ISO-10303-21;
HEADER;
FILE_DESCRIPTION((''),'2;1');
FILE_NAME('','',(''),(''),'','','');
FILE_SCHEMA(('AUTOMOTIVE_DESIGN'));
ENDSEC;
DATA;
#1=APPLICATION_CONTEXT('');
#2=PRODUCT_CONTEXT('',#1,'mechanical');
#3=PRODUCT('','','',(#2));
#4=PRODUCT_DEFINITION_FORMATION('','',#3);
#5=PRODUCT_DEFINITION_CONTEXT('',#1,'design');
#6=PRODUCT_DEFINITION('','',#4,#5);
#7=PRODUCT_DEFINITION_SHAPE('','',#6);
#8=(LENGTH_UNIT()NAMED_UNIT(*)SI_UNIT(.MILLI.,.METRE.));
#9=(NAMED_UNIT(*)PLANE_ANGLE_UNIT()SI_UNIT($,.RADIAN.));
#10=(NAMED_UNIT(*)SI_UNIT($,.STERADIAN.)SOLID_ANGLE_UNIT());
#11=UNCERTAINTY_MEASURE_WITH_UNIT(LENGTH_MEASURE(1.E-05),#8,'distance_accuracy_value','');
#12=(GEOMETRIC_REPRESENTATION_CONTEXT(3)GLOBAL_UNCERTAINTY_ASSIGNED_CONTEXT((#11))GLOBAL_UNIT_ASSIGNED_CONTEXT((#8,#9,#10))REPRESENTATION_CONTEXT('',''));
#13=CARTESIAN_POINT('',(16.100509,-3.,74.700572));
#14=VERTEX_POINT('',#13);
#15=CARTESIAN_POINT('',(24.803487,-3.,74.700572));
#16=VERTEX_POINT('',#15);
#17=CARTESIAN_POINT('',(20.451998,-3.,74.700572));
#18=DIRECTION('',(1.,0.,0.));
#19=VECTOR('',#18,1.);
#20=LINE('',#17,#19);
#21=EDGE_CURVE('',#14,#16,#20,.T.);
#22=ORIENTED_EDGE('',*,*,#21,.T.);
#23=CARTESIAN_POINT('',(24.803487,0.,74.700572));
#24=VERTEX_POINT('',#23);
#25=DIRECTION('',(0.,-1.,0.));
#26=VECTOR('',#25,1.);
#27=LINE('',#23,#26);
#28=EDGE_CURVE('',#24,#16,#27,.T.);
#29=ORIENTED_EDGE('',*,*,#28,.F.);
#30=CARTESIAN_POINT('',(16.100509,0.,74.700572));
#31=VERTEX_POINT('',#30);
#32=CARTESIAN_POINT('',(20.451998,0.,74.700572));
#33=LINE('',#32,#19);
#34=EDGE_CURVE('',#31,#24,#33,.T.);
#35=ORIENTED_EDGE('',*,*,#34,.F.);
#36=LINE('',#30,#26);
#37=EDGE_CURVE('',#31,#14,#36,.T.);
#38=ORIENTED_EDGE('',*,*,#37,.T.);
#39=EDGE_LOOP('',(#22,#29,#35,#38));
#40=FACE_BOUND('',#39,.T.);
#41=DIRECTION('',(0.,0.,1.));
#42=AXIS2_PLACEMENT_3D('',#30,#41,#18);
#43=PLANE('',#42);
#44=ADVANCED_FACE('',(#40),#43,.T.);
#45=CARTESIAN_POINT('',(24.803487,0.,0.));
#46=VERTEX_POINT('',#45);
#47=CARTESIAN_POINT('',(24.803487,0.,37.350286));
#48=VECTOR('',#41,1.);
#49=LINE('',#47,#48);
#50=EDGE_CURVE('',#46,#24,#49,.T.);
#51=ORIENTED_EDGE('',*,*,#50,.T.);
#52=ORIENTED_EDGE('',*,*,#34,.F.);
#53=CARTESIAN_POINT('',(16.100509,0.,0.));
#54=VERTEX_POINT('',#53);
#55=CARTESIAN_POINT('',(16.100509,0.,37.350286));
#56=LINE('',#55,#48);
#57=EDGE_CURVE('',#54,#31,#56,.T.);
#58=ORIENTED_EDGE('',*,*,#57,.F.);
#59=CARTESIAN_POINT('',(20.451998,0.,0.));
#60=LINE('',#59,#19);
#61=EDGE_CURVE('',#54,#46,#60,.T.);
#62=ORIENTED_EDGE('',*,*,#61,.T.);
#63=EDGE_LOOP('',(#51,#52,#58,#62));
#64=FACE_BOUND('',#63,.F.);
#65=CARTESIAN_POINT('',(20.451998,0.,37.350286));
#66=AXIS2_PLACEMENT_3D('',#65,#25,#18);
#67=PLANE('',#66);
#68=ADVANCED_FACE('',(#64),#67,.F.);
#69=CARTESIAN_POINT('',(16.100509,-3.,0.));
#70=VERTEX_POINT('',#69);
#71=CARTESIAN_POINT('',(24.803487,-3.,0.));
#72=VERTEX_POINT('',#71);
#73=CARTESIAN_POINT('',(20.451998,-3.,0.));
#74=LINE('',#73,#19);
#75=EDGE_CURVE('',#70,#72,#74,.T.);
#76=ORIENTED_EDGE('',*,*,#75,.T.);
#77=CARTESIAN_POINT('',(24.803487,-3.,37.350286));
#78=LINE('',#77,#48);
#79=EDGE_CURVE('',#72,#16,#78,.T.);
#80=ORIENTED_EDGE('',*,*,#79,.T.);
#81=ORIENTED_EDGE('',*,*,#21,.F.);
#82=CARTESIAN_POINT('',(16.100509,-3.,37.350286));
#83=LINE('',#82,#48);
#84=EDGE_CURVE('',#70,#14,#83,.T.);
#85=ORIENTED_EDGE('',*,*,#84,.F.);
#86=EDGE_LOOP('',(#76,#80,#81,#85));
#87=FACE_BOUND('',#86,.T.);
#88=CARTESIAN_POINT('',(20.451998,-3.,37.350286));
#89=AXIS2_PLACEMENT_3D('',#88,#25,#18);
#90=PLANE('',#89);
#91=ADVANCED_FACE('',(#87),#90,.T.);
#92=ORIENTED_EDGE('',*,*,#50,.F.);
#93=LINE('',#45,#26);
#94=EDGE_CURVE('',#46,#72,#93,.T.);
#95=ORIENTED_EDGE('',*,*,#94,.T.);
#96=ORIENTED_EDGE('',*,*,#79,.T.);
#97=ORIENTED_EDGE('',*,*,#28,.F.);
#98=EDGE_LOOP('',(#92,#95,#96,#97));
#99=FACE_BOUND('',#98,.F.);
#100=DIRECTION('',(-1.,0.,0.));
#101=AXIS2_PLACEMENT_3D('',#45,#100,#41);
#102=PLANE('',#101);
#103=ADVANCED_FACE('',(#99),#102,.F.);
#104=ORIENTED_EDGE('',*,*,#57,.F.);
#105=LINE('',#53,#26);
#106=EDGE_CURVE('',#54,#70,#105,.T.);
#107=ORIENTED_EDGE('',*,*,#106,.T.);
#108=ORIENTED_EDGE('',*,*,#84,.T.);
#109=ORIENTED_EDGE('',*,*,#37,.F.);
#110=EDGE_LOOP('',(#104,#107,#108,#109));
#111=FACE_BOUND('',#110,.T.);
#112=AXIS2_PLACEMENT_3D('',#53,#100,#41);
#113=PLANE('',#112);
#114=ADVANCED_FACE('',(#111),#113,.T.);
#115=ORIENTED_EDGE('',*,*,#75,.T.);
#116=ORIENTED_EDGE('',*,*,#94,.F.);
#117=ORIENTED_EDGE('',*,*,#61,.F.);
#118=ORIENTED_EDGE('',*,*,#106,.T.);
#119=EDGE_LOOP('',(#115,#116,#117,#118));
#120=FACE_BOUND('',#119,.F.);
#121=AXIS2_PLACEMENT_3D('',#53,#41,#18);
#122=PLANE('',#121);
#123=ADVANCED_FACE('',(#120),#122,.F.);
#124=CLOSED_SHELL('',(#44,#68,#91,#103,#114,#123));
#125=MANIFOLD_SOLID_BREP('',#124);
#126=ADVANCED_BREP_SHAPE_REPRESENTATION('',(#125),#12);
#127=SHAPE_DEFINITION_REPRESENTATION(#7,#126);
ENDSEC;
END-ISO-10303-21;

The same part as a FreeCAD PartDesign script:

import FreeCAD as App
import Part
import Sketcher
Q = App.Units.Quantity

doc = App.newDocument("Part")
body = doc.addObject("PartDesign::Body", "Body")

# Sketch on XZ plane
sketch1 = body.newObject("Sketcher::SketchObject", "Sketch")
sketch1.AttachmentSupport = (doc.getObject("XZ_Plane"), [""])
sketch1.MapMode = "FlatFace"
sketch1.addGeometry(Part.LineSegment(App.Vector(16.100509, 74.700572, 0), App.Vector(16.100509, 0, 0)), False)
sketch1.addGeometry(Part.LineSegment(App.Vector(16.100509, 0, 0), App.Vector(24.803487, 0, 0)), False)
sketch1.addGeometry(Part.LineSegment(App.Vector(24.803487, 0, 0), App.Vector(24.803487, 74.700572, 0)), False)
sketch1.addGeometry(Part.LineSegment(App.Vector(24.803487, 74.700572, 0), App.Vector(16.100509, 74.700572, 0)), False)
sketch1.addConstraint(Sketcher.Constraint("Coincident", 0, 2, 1, 1))
sketch1.addConstraint(Sketcher.Constraint("Coincident", 1, 2, 2, 1))
sketch1.addConstraint(Sketcher.Constraint("Coincident", 2, 2, 3, 1))
sketch1.addConstraint(Sketcher.Constraint("Coincident", 3, 2, 0, 1))
sketch1.addConstraint(Sketcher.Constraint("Vertical", 0))
sketch1.addConstraint(Sketcher.Constraint("Horizontal", 1))
sketch1.addConstraint(Sketcher.Constraint("Vertical", 2))
sketch1.addConstraint(Sketcher.Constraint("Horizontal", 3))
sketch1.addConstraint(Sketcher.Constraint("PointOnObject", 0, 2, -1))
sketch1.addConstraint(Sketcher.Constraint("DistanceX", 1, 1, 1, 2, Q("8.702979 mm")))
sketch1.addConstraint(Sketcher.Constraint("DistanceY", 0, 2, 0, 1, Q("74.700572 mm")))
sketch1.addConstraint(Sketcher.Constraint("DistanceX", -1, 1, 0, 2, Q("16.100509 mm")))
pad1 = body.newObject("PartDesign::Pad", "Pad")
pad1.Profile = sketch1
pad1.Length = 3

# Sketch on XZ plane
sketch2 = body.newObject("Sketcher::SketchObject", "Sketch001")
sketch2.AttachmentSupport = (doc.getObject("XZ_Plane"), [""])
sketch2.MapMode = "FlatFace"
sketch2.addGeometry(Part.LineSegment(App.Vector(16.100509, 74.700572, 0), App.Vector(16.100509, 0, 0)), False)
sketch2.addGeometry(Part.LineSegment(App.Vector(16.100509, 0, 0), App.Vector(24.803487, 0, 0)), False)
sketch2.addGeometry(Part.LineSegment(App.Vector(24.803487, 0, 0), App.Vector(24.803487, 74.700572, 0)), False)
sketch2.addGeometry(Part.LineSegment(App.Vector(24.803487, 74.700572, 0), App.Vector(16.100509, 74.700572, 0)), False)
sketch2.addConstraint(Sketcher.Constraint("Coincident", 0, 2, 1, 1))
sketch2.addConstraint(Sketcher.Constraint("Coincident", 1, 2, 2, 1))
sketch2.addConstraint(Sketcher.Constraint("Coincident", 2, 2, 3, 1))
sketch2.addConstraint(Sketcher.Constraint("Coincident", 3, 2, 0, 1))
sketch2.addConstraint(Sketcher.Constraint("Vertical", 0))
sketch2.addConstraint(Sketcher.Constraint("Horizontal", 1))
sketch2.addConstraint(Sketcher.Constraint("Vertical", 2))
sketch2.addConstraint(Sketcher.Constraint("Horizontal", 3))
sketch2.addConstraint(Sketcher.Constraint("PointOnObject", 0, 2, -1))
sketch2.addConstraint(Sketcher.Constraint("DistanceX", 1, 1, 1, 2, Q("8.702979 mm")))
sketch2.addConstraint(Sketcher.Constraint("DistanceY", 0, 2, 0, 1, Q("74.700572 mm")))
sketch2.addConstraint(Sketcher.Constraint("DistanceX", -1, 1, 0, 2, Q("16.100509 mm")))
pad2 = body.newObject("PartDesign::Pad", "Pad001")
pad2.Profile = sketch2
pad2.Length = 3

doc.recompute()
